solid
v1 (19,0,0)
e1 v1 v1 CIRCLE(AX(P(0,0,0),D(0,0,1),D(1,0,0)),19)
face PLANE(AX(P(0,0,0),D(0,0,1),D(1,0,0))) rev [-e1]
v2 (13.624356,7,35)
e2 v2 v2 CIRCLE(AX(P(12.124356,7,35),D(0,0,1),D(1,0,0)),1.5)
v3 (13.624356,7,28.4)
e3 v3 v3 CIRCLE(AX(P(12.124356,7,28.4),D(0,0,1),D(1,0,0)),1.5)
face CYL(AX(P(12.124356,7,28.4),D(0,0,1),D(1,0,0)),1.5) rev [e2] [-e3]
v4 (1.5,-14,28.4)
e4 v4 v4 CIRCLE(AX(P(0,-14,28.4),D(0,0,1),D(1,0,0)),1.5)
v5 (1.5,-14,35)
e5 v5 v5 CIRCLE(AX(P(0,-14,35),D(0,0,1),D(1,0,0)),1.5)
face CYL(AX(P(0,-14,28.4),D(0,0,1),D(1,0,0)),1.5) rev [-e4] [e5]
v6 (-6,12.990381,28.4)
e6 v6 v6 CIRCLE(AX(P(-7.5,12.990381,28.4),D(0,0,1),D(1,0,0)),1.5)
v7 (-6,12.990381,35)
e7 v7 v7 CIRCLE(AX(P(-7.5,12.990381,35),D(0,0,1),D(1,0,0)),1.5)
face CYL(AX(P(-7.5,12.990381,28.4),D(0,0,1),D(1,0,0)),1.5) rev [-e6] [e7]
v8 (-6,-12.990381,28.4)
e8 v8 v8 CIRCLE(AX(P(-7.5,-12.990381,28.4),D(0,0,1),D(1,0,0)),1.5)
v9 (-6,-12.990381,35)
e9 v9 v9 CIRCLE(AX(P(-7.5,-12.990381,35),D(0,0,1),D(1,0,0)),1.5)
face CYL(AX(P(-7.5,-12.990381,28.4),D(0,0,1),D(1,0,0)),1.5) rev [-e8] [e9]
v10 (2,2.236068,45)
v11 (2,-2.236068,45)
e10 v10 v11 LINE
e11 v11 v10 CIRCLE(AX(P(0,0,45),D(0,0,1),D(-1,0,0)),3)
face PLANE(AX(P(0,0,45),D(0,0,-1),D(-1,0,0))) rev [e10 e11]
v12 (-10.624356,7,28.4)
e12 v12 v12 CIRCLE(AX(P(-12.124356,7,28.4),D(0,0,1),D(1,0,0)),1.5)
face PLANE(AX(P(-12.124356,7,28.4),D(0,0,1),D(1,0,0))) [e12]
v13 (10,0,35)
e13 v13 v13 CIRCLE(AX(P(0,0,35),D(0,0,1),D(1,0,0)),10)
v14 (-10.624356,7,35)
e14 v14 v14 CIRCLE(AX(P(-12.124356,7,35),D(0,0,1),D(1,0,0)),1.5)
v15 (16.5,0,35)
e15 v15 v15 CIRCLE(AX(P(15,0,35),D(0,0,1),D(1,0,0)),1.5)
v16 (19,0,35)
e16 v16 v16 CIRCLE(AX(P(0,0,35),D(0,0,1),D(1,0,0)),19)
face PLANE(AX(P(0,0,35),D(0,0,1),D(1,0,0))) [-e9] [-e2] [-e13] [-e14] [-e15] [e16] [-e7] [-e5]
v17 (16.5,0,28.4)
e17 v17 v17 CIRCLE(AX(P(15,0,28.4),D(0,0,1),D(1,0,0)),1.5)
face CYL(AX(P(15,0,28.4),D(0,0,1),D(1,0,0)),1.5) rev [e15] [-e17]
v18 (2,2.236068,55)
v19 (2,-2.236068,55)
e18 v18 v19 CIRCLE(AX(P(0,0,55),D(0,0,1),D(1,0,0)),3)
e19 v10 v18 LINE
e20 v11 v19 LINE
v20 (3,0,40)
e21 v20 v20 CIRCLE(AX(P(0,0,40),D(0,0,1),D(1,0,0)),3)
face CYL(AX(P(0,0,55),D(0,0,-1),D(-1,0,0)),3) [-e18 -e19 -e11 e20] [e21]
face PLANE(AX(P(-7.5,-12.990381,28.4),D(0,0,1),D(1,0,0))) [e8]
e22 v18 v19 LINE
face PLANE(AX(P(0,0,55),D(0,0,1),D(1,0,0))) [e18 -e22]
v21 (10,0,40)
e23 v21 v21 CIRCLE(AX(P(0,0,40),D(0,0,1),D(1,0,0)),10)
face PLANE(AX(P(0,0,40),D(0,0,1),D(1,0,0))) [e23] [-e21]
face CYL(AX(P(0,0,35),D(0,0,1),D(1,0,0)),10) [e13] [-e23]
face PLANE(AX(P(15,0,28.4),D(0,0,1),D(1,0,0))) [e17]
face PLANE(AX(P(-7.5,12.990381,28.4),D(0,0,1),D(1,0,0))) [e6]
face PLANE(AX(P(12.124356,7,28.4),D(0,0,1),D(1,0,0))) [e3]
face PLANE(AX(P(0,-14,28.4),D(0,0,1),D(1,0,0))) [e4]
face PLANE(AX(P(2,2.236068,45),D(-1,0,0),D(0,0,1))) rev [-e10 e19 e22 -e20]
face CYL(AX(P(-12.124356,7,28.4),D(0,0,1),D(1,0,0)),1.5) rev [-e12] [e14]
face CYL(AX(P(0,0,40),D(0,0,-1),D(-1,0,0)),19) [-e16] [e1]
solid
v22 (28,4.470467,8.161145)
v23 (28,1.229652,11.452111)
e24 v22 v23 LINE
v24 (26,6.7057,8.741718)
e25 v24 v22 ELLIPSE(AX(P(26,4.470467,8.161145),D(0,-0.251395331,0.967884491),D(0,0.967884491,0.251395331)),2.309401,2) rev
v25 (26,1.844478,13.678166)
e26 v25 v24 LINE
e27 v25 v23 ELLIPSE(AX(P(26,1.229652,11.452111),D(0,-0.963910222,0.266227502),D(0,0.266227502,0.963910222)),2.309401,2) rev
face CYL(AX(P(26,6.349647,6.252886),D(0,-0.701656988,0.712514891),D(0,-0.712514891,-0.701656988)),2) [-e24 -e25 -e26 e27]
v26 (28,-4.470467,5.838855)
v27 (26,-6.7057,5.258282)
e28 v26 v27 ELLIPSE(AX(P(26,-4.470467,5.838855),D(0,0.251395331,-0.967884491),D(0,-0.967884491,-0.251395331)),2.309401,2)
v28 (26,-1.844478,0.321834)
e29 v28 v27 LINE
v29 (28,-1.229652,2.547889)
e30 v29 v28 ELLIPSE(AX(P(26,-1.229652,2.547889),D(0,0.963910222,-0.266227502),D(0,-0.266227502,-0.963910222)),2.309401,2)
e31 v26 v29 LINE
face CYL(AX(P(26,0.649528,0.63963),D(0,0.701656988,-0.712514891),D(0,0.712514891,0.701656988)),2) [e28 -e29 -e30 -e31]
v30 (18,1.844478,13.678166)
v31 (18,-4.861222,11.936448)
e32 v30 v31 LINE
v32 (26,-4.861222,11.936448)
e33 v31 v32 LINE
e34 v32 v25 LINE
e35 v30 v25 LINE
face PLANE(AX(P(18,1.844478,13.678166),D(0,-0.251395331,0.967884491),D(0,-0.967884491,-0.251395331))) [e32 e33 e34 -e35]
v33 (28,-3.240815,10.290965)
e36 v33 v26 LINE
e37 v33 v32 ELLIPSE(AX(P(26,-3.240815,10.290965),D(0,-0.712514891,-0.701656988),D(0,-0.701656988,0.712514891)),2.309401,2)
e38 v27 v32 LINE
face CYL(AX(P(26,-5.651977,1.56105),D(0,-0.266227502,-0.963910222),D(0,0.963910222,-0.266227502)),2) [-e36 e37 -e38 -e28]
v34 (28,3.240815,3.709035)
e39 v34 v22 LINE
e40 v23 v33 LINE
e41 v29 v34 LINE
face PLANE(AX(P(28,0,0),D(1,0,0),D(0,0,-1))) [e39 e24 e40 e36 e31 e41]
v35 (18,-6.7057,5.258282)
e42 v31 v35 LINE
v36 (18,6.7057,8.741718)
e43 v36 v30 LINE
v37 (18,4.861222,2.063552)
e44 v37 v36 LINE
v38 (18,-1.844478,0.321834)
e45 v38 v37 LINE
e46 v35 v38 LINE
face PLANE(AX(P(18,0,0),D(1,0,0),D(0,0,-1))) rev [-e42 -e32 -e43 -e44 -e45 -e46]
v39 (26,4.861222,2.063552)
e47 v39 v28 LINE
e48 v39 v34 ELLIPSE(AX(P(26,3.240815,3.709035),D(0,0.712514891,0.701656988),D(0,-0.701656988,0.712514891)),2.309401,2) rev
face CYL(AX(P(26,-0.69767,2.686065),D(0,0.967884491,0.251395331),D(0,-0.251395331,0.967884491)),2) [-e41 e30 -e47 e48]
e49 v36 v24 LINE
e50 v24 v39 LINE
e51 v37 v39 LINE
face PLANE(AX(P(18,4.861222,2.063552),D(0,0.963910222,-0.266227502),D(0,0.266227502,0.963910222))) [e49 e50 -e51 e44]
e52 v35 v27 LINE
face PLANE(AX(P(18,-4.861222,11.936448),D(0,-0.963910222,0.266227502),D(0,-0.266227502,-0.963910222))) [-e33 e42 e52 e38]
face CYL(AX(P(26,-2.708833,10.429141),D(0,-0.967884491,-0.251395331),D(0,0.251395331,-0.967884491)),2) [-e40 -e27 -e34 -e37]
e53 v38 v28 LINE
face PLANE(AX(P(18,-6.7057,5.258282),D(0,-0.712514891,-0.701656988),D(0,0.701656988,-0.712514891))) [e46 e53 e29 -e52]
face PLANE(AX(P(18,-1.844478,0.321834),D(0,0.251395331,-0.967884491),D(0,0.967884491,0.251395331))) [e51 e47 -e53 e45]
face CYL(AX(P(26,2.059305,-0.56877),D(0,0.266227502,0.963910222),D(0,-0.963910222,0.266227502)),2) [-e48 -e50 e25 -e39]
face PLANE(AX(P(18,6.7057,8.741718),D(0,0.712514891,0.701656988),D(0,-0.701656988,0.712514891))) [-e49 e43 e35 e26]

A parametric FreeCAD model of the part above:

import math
import FreeCAD as App
import Part
import Sketcher
Q = App.Units.Quantity


def edges_at(feature, points):
    """Names of the edges that pass closest to the given points."""
    edges = feature.Shape.Edges
    near = lambda p: min(range(len(edges)), key=lambda i: edges[i].distToShape(Part.Vertex(*p))[0])
    return sorted({f"Edge{near(p) + 1}" for p in points})


def add_polygon(sketch, points):
    """Adds a closed chain of lines whose ends are joined by coincident constraints."""
    first, n = sketch.GeometryCount, len(points)
    for a, b in zip(points, points[1:] + points[:1]):
        sketch.addGeometry(Part.LineSegment(App.Vector(*a, 0), App.Vector(*b, 0)), False)
    for i in range(n):
        sketch.addConstraint(Sketcher.Constraint("Coincident", first + i, 2, first + (i + 1) % n, 1))

doc = App.newDocument("Part")
params = doc.addObject("Spreadsheet::Sheet", "Params")
for row, (alias, value) in enumerate([
    ("sketch1_diameter", "38 mm"),
    ("pad1_length", "40 mm"),
    ("sketch2_diameter", "38 mm"),
    ("sketch2_diameter2", "20 mm"),
    ("pocket1_length", "5 mm"),
    ("sketch3_diameter", "3 mm"),
    ("pocket2_length", "6.6 mm"),
    ("sketch4_diameter", "6 mm"),
    ("pad2_length", "15 mm"),
    ("sketch5_radius", "3 mm"),
    ("pocket3_length", "10 mm"),
    ("pad3_length", "9 mm"),
    ("pad3_length2", "1 mm"),
    ("fillet_radius", "2 mm"),
], start=1):
    params.set(f"A{row}", alias)
    params.set(f"B{row}", "=" + value)
    params.setAlias(f"B{row}", alias)

body = doc.addObject("PartDesign::Body", "Body")

sketch1 = body.newObject("Sketcher::SketchObject", "Sketch")
sketch1.AttachmentSupport = (doc.getObject("XY_Plane"), [""])
sketch1.MapMode = "FlatFace"
sketch1.addGeometry(Part.Circle(App.Vector(0, 0, 0), App.Vector(0, 0, 1), 19), False)
sketch1.addConstraint([
    Sketcher.Constraint("Coincident", 0, 3, -1, 1),
    Sketcher.Constraint("Diameter", 0, Q("38 mm")),
])
sketch1.setExpression("Constraints[1]", "Params.sketch1_diameter")
pad1 = body.newObject("PartDesign::Pad", "Pad")
pad1.Profile = sketch1
pad1.setExpression("Length", "Params.pad1_length")

sketch2 = body.newObject("Sketcher::SketchObject", "Sketch001")
sketch2.AttachmentSupport = (doc.getObject("XY_Plane"), [""])
sketch2.MapMode = "FlatFace"
sketch2.AttachmentOffset = App.Placement(App.Vector(0, 0, 40), App.Rotation())
sketch2.addGeometry([
    Part.Circle(App.Vector(0, 0, 0), App.Vector(0, 0, 1), 19),
    Part.Circle(App.Vector(0, 0, 0), App.Vector(0, 0, 1), 10),
], False)
sketch2.addConstraint([
    Sketcher.Constraint("Coincident", 0, 3, -1, 1),
    Sketcher.Constraint("Coincident", 1, 3, -1, 1),
    Sketcher.Constraint("Diameter", 0, Q("38 mm")),
    Sketcher.Constraint("Diameter", 1, Q("20 mm")),
])
sketch2.setExpression("Constraints[2]", "Params.sketch2_diameter")
sketch2.setExpression("Constraints[3]", "Params.sketch2_diameter2")
pocket1 = body.newObject("PartDesign::Pocket", "Pocket")
pocket1.Profile = sketch2
pocket1.setExpression("Length", "Params.pocket1_length")

sketch3 = body.newObject("Sketcher::SketchObject", "Sketch002")
sketch3.AttachmentSupport = (doc.getObject("XY_Plane"), [""])
sketch3.MapMode = "FlatFace"
sketch3.AttachmentOffset = App.Placement(App.Vector(0, 0, 35), App.Rotation())
sketch3.addGeometry([
    Part.Circle(App.Vector(15, 0, 0), App.Vector(0, 0, 1), 1.5),
    Part.Circle(App.Vector(-7.5, -13, 0), App.Vector(0, 0, 1), 1.5),
    Part.Circle(App.Vector(-7.5, 13, 0), App.Vector(0, 0, 1), 1.5),
    Part.Circle(App.Vector(12.1, 7, 0), App.Vector(0, 0, 1), 1.5),
    Part.Circle(App.Vector(-12.1, 7, 0), App.Vector(0, 0, 1), 1.5),
    Part.Circle(App.Vector(0, -14, 0), App.Vector(0, 0, 1), 1.5),
], False)
sketch3.addConstraint([
    Sketcher.Constraint("Equal", 0, 1),
    Sketcher.Constraint("Equal", 1, 2),
    Sketcher.Constraint("Equal", 2, 3),
    Sketcher.Constraint("Equal", 3, 4),
    Sketcher.Constraint("Equal", 4, 5),
    Sketcher.Constraint("Symmetric", 3, 3, 4, 3, -2),
    Sketcher.Constraint("Symmetric", 1, 3, 2, 3, -1),
    Sketcher.Constraint("PointOnObject", 0, 3, -1),
    Sketcher.Constraint("PointOnObject", 5, 3, -2),
    Sketcher.Constraint("Diameter", 0, Q("3 mm")),
    Sketcher.Constraint("DistanceX", -1, 1, 0, 3, Q("15 mm")),
    Sketcher.Constraint("DistanceY", -1, 1, 3, 3, Q("7 mm")),
    Sketcher.Constraint("DistanceY", 5, 3, -1, 1, Q("14 mm")),
    Sketcher.Constraint("DistanceX", 1, 3, -1, 1, Q("7.5 mm")),
    Sketcher.Constraint("DistanceY", 1, 3, -1, 1, Q("12.990381 mm")),
    Sketcher.Constraint("DistanceX", 4, 3, 3, 3, Q("24.248711 mm")),
])
sketch3.setExpression("Constraints[9]", "Params.sketch3_diameter")
pocket2 = body.newObject("PartDesign::Pocket", "Pocket001")
pocket2.Profile = sketch3
pocket2.setExpression("Length", "Params.pocket2_length")

sketch4 = body.newObject("Sketcher::SketchObject", "Sketch003")
sketch4.AttachmentSupport = (doc.getObject("XY_Plane"), [""])
sketch4.MapMode = "FlatFace"
sketch4.AttachmentOffset = App.Placement(App.Vector(0, 0, 40), App.Rotation())
sketch4.addGeometry(Part.Circle(App.Vector(0, 0, 0), App.Vector(0, 0, 1), 3), False)
sketch4.addConstraint([
    Sketcher.Constraint("Coincident", 0, 3, -1, 1),
    Sketcher.Constraint("Diameter", 0, Q("6 mm")),
])
sketch4.setExpression("Constraints[1]", "Params.sketch4_diameter")
pad2 = body.newObject("PartDesign::Pad", "Pad001")
pad2.Profile = sketch4
pad2.setExpression("Length", "Params.pad2_length")

sketch5 = body.newObject("Sketcher::SketchObject", "Sketch004")
sketch5.AttachmentSupport = (doc.getObject("XY_Plane"), [""])
sketch5.MapMode = "FlatFace"
sketch5.AttachmentOffset = App.Placement(App.Vector(0, 0, 55), App.Rotation())
sketch5.addGeometry([
    Part.LineSegment(App.Vector(2, 2.2, 0), App.Vector(2, -2.2, 0)),
    Part.ArcOfCircle(Part.Circle(App.Vector(0, 0, 0), App.Vector(0, 0, 1), 3), math.radians(-48), math.radians(48)),
], False)
sketch5.addConstraint([
    Sketcher.Constraint("Coincident", 0, 1, 1, 2),
    Sketcher.Constraint("Coincident", 1, 1, 0, 2),
    Sketcher.Constraint("Vertical", 0),
    Sketcher.Constraint("Coincident", 1, 3, -1, 1),
    Sketcher.Constraint("Radius", 1, Q("3 mm")),
    Sketcher.Constraint("DistanceX", -1, 1, 0, 1, Q("2 mm")),
])
sketch5.setExpression("Constraints[4]", "Params.sketch5_radius")
pocket3 = body.newObject("PartDesign::Pocket", "Pocket002")
pocket3.Profile = sketch5
pocket3.setExpression("Length", "Params.pocket3_length")
body2 = doc.addObject("PartDesign::Body", "Body001")

sketch6 = body2.newObject("Sketcher::SketchObject", "Sketch005")
sketch6.AttachmentSupport = (doc.getObject("YZ_Plane001"), [""])
sketch6.MapMode = "FlatFace"
sketch6.AttachmentOffset = App.Placement(App.Vector(0, 0, 19), App.Rotation())
add_polygon(sketch6, [(5, 2), (7, 9), (2, 14), (-5, 12), (-7, 5), (-2, 0)])
sketch6.addConstraint([
    Sketcher.Constraint("Parallel", 0, 3),
    Sketcher.Constraint("Parallel", 1, 4),
    Sketcher.Constraint("Parallel", 2, 5),
    Sketcher.Constraint("Equal", 0, 1),
    Sketcher.Constraint("Equal", 1, 2),
    Sketcher.Constraint("Equal", 2, 3),
    Sketcher.Constraint("DistanceX", -1, 1, 0, 2, Q("6.7057 mm")),
    Sketcher.Constraint("DistanceX", 3, 2, -1, 1, Q("6.7057 mm")),
    Sketcher.Constraint("DistanceX", 2, 2, 1, 2, Q("6.7057 mm")),
    Sketcher.Constraint("DistanceX", -1, 1, 1, 2, Q("1.844478 mm")),
    Sketcher.Constraint("DistanceY", 0, 2, 2, 2, Q("3.19473 mm")),
    Sketcher.Constraint("DistanceY", -1, 1, 0, 2, Q("8.741718 mm")),
])
pad3 = body2.newObject("PartDesign::Pad", "Pad002")
pad3.Profile = sketch6
pad3.Type = "TwoLengths"
pad3.setExpression("Length", "Params.pad3_length")
pad3.setExpression("Length2", "Params.pad3_length2")
doc.recompute()

fillet = body2.newObject("PartDesign::Fillet", "Fillet")
fillet.Base = (pad3, edges_at(pad3, [
    (28, 1.508, 1.193),
    (28, 5.783, 5.403),
    (28, 4.275, 11.21),
    (28, -1.508, 12.807),
    (28, -5.783, 8.597),
    (28, -4.275, 2.79),
]))
fillet.setExpression("Radius", "Params.fillet_radius")

doc.recompute()
